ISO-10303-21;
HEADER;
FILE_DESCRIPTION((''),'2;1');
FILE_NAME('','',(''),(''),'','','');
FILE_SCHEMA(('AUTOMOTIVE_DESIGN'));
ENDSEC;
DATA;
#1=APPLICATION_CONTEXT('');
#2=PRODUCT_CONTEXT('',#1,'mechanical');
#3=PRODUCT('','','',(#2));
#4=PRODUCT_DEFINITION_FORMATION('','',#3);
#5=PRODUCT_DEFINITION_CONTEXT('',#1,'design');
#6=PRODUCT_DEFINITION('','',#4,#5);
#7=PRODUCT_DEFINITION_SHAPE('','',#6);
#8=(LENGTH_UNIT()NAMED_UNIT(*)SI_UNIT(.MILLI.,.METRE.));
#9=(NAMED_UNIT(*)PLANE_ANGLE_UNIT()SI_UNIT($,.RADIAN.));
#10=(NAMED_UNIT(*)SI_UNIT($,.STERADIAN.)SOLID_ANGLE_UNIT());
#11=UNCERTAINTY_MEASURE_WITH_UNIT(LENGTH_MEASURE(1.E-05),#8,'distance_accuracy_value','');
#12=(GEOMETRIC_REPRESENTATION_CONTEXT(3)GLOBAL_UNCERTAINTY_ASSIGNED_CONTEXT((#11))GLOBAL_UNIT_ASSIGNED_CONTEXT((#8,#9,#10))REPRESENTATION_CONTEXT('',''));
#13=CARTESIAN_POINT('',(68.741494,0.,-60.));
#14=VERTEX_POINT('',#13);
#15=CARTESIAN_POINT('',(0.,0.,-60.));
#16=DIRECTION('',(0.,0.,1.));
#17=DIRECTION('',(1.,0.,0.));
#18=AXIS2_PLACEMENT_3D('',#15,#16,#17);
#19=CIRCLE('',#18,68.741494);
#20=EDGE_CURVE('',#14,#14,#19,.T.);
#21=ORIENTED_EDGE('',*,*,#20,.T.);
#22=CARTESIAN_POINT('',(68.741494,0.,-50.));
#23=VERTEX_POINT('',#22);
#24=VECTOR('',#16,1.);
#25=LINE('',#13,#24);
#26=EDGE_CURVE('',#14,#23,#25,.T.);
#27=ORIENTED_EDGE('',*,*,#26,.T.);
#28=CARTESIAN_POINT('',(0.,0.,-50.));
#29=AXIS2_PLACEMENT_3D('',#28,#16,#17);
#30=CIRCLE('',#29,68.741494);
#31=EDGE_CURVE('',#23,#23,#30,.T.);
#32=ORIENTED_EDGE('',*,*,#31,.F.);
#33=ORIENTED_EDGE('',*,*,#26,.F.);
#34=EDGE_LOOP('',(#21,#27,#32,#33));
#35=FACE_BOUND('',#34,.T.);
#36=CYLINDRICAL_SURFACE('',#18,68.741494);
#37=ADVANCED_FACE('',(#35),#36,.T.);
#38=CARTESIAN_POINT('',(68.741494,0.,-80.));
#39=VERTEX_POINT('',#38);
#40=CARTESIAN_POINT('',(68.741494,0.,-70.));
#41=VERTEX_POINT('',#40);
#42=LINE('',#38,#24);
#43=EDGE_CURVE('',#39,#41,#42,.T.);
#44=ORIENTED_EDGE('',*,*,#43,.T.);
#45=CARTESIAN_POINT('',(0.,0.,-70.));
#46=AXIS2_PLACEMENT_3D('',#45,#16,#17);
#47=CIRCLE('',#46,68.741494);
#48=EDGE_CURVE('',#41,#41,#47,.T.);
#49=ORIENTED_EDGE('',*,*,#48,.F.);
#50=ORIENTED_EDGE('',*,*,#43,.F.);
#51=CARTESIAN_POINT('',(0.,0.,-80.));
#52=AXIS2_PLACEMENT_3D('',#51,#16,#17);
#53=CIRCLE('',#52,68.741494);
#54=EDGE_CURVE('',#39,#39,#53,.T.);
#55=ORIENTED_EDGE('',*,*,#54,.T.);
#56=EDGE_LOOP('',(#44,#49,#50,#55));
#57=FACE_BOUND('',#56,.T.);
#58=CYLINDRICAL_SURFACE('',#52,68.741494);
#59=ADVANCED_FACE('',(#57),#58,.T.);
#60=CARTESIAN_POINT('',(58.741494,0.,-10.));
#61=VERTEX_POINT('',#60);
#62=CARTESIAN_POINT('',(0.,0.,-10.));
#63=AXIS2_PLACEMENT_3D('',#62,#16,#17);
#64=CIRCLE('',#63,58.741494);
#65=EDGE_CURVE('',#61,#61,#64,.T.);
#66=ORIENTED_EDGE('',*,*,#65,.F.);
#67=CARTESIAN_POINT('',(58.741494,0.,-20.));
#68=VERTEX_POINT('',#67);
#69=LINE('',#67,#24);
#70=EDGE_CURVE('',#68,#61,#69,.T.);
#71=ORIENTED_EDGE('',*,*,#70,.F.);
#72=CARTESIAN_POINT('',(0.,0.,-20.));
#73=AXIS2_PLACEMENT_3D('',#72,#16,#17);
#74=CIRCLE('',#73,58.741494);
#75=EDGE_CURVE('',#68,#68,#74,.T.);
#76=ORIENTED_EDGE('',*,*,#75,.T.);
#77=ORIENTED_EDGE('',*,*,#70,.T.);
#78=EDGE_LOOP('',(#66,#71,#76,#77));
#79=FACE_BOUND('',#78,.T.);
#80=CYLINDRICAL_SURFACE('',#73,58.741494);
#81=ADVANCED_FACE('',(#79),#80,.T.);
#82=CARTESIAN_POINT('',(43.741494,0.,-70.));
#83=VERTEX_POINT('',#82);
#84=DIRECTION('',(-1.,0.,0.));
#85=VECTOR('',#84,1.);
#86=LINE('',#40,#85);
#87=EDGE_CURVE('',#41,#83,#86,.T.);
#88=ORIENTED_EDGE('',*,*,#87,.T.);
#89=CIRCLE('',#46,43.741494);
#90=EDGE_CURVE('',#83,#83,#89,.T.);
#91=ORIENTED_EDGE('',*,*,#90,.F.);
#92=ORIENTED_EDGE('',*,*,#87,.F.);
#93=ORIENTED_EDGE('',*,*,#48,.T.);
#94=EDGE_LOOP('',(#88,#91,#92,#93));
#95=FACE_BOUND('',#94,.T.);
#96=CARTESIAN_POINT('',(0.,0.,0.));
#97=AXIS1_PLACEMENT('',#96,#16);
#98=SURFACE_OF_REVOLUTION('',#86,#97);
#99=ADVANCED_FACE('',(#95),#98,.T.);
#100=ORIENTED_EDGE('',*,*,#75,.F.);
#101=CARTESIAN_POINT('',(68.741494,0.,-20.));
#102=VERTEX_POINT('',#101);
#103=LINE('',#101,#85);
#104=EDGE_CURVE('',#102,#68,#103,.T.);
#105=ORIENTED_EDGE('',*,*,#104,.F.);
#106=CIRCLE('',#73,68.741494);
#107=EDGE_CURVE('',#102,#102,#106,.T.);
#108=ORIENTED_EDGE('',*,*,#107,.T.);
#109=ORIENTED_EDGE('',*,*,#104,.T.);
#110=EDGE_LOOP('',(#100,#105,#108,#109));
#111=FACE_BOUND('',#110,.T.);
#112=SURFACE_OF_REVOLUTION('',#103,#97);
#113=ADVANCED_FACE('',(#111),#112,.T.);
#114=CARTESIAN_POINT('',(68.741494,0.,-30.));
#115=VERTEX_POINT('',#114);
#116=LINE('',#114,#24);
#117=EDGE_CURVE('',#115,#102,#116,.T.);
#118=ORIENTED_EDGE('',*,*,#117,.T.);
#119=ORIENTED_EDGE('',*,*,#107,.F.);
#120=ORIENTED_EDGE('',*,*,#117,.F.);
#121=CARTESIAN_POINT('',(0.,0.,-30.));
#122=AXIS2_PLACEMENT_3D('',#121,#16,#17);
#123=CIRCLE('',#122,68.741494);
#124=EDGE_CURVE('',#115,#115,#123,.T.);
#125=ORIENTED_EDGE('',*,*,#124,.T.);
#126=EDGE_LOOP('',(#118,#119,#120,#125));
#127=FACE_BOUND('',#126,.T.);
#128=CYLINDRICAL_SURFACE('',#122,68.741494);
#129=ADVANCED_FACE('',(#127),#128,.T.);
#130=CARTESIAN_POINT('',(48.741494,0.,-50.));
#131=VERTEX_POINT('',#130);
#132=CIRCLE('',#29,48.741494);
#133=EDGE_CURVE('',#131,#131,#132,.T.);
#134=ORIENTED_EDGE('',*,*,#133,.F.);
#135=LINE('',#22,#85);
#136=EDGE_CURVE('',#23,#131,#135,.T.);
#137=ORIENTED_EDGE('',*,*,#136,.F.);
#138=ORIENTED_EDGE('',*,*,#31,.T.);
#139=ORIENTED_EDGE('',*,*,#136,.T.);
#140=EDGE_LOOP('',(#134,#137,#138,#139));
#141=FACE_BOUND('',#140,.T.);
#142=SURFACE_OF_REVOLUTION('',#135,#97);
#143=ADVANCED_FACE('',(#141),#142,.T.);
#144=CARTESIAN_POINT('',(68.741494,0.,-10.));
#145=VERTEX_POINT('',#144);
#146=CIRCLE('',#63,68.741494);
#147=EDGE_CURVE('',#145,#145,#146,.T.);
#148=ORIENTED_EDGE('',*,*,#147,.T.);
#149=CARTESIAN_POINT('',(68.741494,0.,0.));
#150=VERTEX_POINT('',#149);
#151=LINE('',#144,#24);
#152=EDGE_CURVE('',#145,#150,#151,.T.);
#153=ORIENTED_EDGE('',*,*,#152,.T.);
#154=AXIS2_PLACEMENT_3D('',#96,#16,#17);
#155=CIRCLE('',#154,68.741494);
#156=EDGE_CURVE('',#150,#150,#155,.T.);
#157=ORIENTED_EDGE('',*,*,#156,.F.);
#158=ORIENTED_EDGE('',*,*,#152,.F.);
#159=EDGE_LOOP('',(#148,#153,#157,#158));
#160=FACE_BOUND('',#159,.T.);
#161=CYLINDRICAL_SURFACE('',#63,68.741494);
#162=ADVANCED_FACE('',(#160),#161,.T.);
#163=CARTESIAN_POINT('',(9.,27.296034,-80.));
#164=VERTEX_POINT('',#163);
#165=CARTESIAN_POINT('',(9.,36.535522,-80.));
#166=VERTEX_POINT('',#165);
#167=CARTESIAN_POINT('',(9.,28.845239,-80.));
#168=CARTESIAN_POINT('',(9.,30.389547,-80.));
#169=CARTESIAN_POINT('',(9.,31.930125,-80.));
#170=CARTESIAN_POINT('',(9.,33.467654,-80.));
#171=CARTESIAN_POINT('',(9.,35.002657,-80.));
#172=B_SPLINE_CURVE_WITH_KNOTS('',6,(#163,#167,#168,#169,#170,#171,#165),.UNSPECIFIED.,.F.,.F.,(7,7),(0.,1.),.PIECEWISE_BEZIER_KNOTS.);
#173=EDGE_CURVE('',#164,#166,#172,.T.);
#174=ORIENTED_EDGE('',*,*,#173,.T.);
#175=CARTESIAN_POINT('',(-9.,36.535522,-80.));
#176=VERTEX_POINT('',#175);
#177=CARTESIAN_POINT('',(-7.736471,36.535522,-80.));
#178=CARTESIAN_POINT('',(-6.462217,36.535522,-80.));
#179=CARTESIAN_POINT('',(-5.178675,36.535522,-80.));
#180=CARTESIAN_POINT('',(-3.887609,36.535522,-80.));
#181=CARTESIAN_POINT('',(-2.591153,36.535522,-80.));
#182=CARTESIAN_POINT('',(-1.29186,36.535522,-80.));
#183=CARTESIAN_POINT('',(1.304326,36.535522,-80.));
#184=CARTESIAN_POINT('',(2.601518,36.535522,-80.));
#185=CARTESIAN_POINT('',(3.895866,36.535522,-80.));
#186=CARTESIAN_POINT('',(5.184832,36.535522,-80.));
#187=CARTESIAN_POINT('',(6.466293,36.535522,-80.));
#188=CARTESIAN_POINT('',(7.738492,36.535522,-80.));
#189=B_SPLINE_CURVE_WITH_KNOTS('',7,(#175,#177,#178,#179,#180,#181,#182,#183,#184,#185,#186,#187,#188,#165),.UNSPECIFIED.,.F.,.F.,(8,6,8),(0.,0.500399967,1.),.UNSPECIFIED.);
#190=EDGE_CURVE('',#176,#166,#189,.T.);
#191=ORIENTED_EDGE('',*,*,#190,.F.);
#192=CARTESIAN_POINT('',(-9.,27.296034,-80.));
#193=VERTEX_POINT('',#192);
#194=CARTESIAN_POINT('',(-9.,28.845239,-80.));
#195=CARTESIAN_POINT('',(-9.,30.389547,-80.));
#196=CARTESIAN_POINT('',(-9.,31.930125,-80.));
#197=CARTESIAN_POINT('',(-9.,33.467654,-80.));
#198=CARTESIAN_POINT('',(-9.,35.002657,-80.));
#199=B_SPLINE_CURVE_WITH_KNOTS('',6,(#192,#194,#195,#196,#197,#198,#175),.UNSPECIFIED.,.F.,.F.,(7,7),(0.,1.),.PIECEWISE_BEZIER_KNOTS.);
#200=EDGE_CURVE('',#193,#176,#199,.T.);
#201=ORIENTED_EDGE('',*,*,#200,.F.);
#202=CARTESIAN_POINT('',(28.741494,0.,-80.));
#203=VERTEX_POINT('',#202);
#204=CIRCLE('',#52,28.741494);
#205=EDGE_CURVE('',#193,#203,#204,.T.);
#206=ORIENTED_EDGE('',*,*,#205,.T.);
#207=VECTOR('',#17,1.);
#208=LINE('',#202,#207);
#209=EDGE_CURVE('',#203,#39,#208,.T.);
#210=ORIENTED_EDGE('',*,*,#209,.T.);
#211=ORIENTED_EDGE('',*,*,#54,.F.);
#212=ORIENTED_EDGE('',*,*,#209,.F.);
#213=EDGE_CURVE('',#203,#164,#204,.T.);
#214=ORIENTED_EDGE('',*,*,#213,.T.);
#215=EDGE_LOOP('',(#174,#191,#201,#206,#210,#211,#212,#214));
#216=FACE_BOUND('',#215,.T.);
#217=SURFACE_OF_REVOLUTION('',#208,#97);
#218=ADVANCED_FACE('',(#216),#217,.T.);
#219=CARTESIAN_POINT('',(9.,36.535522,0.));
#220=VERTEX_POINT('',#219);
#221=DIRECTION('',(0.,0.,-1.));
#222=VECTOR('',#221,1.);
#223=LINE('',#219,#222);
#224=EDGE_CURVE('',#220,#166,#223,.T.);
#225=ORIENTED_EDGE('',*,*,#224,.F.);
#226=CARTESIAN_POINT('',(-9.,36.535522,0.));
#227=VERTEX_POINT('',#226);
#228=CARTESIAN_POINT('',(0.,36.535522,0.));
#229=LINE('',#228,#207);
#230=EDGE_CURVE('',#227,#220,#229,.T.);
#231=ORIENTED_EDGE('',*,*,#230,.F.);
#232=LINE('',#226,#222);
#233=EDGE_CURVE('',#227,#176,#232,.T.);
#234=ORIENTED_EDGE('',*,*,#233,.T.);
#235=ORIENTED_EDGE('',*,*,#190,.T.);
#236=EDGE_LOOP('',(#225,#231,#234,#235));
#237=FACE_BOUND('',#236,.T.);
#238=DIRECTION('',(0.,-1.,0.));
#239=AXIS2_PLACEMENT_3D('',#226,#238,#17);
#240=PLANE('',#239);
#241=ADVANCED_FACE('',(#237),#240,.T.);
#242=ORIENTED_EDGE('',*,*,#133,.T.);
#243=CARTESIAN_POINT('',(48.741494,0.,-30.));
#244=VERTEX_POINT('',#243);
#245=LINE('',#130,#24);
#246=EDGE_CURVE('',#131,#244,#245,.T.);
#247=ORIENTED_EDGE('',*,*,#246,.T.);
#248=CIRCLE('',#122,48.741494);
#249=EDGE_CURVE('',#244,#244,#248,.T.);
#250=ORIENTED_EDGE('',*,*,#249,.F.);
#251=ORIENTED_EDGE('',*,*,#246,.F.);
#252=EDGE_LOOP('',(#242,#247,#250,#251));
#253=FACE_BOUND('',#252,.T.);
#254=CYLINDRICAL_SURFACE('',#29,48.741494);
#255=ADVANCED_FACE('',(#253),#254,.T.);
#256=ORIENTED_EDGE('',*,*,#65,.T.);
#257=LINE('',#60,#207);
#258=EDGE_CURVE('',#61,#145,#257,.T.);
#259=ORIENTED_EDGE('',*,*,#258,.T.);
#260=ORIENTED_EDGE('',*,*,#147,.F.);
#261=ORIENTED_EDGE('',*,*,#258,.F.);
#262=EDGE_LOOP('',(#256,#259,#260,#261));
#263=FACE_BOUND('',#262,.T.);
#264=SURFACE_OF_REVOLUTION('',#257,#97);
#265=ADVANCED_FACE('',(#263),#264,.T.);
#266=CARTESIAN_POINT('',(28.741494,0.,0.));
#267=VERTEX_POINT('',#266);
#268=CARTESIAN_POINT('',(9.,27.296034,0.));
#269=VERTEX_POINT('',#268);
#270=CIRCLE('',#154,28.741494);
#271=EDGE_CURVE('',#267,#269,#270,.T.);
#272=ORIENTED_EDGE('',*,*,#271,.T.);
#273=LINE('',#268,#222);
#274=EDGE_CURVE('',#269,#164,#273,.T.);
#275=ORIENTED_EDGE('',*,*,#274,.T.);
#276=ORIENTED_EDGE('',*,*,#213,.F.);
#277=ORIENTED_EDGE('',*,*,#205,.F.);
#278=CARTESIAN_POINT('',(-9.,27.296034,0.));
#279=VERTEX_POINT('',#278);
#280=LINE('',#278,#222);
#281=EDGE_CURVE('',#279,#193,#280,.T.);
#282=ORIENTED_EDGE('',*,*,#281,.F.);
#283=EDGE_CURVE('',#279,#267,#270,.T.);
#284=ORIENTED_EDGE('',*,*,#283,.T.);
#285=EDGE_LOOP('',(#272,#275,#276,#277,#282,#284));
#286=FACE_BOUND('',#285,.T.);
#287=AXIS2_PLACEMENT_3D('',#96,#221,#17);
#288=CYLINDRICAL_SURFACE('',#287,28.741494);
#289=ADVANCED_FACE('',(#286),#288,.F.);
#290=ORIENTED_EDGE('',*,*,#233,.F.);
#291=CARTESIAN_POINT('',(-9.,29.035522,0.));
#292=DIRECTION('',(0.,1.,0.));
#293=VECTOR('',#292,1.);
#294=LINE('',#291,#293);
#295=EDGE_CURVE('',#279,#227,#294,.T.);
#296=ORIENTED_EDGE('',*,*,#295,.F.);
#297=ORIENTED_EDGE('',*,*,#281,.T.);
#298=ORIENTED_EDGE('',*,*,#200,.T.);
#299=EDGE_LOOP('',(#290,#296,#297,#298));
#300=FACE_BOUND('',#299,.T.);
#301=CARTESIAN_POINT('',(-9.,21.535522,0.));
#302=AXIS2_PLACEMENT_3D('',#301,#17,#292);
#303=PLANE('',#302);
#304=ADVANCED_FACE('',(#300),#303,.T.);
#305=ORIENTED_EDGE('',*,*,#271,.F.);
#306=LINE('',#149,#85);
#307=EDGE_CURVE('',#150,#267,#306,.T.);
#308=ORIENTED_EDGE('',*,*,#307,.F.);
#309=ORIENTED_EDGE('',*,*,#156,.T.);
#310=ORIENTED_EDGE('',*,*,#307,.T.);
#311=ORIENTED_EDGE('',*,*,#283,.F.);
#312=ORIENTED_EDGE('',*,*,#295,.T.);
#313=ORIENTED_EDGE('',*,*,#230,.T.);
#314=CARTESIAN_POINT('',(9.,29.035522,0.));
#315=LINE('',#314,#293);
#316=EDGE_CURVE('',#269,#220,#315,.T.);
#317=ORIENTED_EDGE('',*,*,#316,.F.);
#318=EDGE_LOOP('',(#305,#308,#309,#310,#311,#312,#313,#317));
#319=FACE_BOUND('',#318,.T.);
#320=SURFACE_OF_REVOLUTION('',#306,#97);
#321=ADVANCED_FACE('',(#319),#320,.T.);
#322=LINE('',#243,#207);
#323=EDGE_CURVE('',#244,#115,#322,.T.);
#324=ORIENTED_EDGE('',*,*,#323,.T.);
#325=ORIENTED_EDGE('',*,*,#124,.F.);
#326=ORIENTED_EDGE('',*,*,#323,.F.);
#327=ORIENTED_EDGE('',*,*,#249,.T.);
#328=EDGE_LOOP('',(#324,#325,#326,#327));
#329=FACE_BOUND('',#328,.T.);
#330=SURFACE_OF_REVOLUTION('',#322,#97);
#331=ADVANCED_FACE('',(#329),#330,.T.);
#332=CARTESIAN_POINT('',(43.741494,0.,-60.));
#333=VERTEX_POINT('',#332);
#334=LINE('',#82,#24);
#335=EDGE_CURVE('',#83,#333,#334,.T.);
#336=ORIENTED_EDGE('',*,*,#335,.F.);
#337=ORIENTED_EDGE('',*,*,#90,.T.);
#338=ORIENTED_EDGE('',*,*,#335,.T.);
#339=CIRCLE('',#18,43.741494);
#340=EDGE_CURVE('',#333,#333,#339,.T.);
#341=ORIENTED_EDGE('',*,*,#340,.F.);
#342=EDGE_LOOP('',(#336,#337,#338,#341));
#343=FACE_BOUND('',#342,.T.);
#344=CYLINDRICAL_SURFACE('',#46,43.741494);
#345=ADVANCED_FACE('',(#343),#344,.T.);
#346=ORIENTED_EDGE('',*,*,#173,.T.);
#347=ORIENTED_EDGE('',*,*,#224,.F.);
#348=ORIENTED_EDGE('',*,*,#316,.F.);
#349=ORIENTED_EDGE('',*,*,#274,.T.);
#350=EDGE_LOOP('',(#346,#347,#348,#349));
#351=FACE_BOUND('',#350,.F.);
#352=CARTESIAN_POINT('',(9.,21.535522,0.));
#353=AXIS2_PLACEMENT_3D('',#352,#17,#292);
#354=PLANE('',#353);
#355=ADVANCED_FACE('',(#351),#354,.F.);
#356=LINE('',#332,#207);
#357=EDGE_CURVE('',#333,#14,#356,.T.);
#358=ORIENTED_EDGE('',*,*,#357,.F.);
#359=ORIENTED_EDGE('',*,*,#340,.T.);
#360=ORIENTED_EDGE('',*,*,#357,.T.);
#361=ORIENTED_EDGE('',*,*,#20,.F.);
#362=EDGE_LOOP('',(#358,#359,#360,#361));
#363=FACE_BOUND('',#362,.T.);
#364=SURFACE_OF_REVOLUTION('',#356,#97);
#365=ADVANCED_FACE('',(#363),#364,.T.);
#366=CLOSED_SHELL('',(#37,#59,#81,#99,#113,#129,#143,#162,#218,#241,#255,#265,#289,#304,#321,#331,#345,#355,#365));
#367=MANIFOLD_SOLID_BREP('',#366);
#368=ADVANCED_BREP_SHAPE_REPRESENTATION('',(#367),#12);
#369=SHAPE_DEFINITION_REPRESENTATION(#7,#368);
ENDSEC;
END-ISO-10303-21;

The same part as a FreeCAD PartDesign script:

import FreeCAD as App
import Part
import Sketcher
from FreeCAD import Vector

doc = App.newDocument("Part")
body = doc.addObject("PartDesign::Body", "Body")

# Sketch on XZ plane
sketch1 = body.newObject("Sketcher::SketchObject", "Sketch")
sketch1.AttachmentSupport = (doc.getObject("XZ_Plane"), [""])
sketch1.MapMode = "FlatFace"
sketch1.addGeometry([
    Part.LineSegment(Vector(68.741494, 0, 0), Vector(28.741494, 0, 0)),  # 0
    Part.LineSegment(Vector(28.741494, 0, 0), Vector(28.741494, -80, 0)),  # 1
    Part.LineSegment(Vector(28.741494, -80, 0), Vector(68.741494, -80, 0)),  # 2
    Part.LineSegment(Vector(68.741494, -80, 0), Vector(68.741494, -70, 0)),  # 3
    Part.LineSegment(Vector(68.741494, -70, 0), Vector(43.741494, -70, 0)),  # 4
    Part.LineSegment(Vector(43.741494, -70, 0), Vector(43.741494, -60, 0)),  # 5
    Part.LineSegment(Vector(43.741494, -60, 0), Vector(68.741494, -60, 0)),  # 6
    Part.LineSegment(Vector(68.741494, -60, 0), Vector(68.741494, -50, 0)),  # 7
    Part.LineSegment(Vector(68.741494, -50, 0), Vector(48.741494, -50, 0)),  # 8
    Part.LineSegment(Vector(48.741494, -50, 0), Vector(48.741494, -30, 0)),  # 9
    Part.LineSegment(Vector(48.741494, -30, 0), Vector(68.741494, -30, 0)),  # 10
    Part.LineSegment(Vector(68.741494, -30, 0), Vector(68.741494, -20, 0)),  # 11
    Part.LineSegment(Vector(68.741494, -20, 0), Vector(58.741494, -20, 0)),  # 12
    Part.LineSegment(Vector(58.741494, -20, 0), Vector(58.741494, -10, 0)),  # 13
    Part.LineSegment(Vector(58.741494, -10, 0), Vector(68.741494, -10, 0)),  # 14
    Part.LineSegment(Vector(68.741494, -10, 0), Vector(68.741494, 0, 0)),  # 15
], False)
sketch1.addConstraint([
    Sketcher.Constraint("Coincident", 0, 2, 1, 1),
    Sketcher.Constraint("Coincident", 1, 2, 2, 1),
    Sketcher.Constraint("Coincident", 2, 2, 3, 1),
    Sketcher.Constraint("Coincident", 3, 2, 4, 1),
    Sketcher.Constraint("Coincident", 4, 2, 5, 1),
    Sketcher.Constraint("Coincident", 5, 2, 6, 1),
    Sketcher.Constraint("Coincident", 6, 2, 7, 1),
    Sketcher.Constraint("Coincident", 7, 2, 8, 1),
    Sketcher.Constraint("Coincident", 8, 2, 9, 1),
    Sketcher.Constraint("Coincident", 9, 2, 10, 1),
    Sketcher.Constraint("Coincident", 10, 2, 11, 1),
    Sketcher.Constraint("Coincident", 11, 2, 12, 1),
    Sketcher.Constraint("Coincident", 12, 2, 13, 1),
    Sketcher.Constraint("Coincident", 13, 2, 14, 1),
    Sketcher.Constraint("Coincident", 14, 2, 15, 1),
    Sketcher.Constraint("Coincident", 15, 2, 0, 1),
    Sketcher.Constraint("Horizontal", 0),
    Sketcher.Constraint("Vertical", 1),
    Sketcher.Constraint("Horizontal", 2),
    Sketcher.Constraint("Vertical", 3),
    Sketcher.Constraint("Horizontal", 4),
    Sketcher.Constraint("Vertical", 5),
    Sketcher.Constraint("Horizontal", 6),
    Sketcher.Constraint("Vertical", 7),
    Sketcher.Constraint("Horizontal", 8),
    Sketcher.Constraint("Vertical", 9),
    Sketcher.Constraint("Horizontal", 10),
    Sketcher.Constraint("Vertical", 11),
    Sketcher.Constraint("Horizontal", 12),
    Sketcher.Constraint("Vertical", 13),
    Sketcher.Constraint("Horizontal", 14),
    Sketcher.Constraint("Vertical", 15),
    Sketcher.Constraint("PointOnObject", 0, 2, -1),
    Sketcher.Constraint("Vertical", 3, 2, 6, 2),
    Sketcher.Constraint("Vertical", 7, 2, 10, 2),
    Sketcher.Constraint("Vertical", 11, 2, 14, 2),
    Sketcher.Constraint("Equal", 14, 3),
    Sketcher.Constraint("Equal", 3, 5),
    Sketcher.Constraint("Equal", 5, 7),
    Sketcher.Constraint("Equal", 10, 9),
    Sketcher.Constraint("Equal", 7, 11),
    Sketcher.Constraint("Equal", 11, 13),
    Sketcher.Constraint("Equal", 13, 15),
    Sketcher.Constraint("DistanceX", 0, 2, 0, 1, 40.0),
    Sketcher.Constraint("DistanceX", 4, 2, 4, 1, 25.0),
    Sketcher.Constraint("DistanceX", 8, 2, 8, 1, 20.0),
    Sketcher.Constraint("DistanceX", 12, 2, 12, 1, 10.0),
    Sketcher.Constraint("DistanceX", -1, 1, 0, 2, 28.741494),
])

# Sketch on XY plane
sketch2 = body.newObject("Sketcher::SketchObject", "Sketch001")
sketch2.AttachmentSupport = (doc.getObject("XY_Plane"), [""])
sketch2.MapMode = "FlatFace"
sketch2.addGeometry(Part.Circle(Vector(0, 0, 0), Vector(0, 0, 1), 28.500317), False)
sketch2.addConstraint([
    Sketcher.Constraint("Coincident", 0, 3, -1, 1),
    Sketcher.Constraint("Diameter", 0, 57.000634),
])
doc.recompute()

additivepipe = body.newObject("PartDesign::AdditivePipe", "AdditivePipe")
additivepipe.Profile = sketch1
additivepipe.Spine = (sketch2, ["Edge1"])

# Sketch on XY plane
sketch3 = body.newObject("Sketcher::SketchObject", "Sketch002")
sketch3.AttachmentSupport = (doc.getObject("XY_Plane"), [""])
sketch3.MapMode = "FlatFace"
sketch3.addGeometry([
    Part.LineSegment(Vector(-9, 36.535522, 0), Vector(-9, 21.535522, 0)),
    Part.LineSegment(Vector(-9, 21.535522, 0), Vector(9, 21.535522, 0)),
    Part.LineSegment(Vector(9, 21.535522, 0), Vector(9, 36.535522, 0)),
    Part.LineSegment(Vector(9, 36.535522, 0), Vector(-9, 36.535522, 0)),
], False)
sketch3.addConstraint([
    Sketcher.Constraint("Coincident", 0, 2, 1, 1),
    Sketcher.Constraint("Coincident", 1, 2, 2, 1),
    Sketcher.Constraint("Coincident", 2, 2, 3, 1),
    Sketcher.Constraint("Coincident", 3, 2, 0, 1),
    Sketcher.Constraint("Vertical", 0),
    Sketcher.Constraint("Horizontal", 1),
    Sketcher.Constraint("Vertical", 2),
    Sketcher.Constraint("Horizontal", 3),
    Sketcher.Constraint("DistanceX", 1, 1, 1, 2, 18.0),
    Sketcher.Constraint("DistanceY", 0, 2, 0, 1, 15.0),
    Sketcher.Constraint("DistanceX", 0, 2, -1, 1, 9.0),
    Sketcher.Constraint("DistanceY", -1, 1, 0, 2, 21.535522),
])
pocket1 = body.newObject("PartDesign::Pocket", "Pocket")
pocket1.Profile = sketch3
pocket1.Type = "ThroughAll"

doc.recompute()
